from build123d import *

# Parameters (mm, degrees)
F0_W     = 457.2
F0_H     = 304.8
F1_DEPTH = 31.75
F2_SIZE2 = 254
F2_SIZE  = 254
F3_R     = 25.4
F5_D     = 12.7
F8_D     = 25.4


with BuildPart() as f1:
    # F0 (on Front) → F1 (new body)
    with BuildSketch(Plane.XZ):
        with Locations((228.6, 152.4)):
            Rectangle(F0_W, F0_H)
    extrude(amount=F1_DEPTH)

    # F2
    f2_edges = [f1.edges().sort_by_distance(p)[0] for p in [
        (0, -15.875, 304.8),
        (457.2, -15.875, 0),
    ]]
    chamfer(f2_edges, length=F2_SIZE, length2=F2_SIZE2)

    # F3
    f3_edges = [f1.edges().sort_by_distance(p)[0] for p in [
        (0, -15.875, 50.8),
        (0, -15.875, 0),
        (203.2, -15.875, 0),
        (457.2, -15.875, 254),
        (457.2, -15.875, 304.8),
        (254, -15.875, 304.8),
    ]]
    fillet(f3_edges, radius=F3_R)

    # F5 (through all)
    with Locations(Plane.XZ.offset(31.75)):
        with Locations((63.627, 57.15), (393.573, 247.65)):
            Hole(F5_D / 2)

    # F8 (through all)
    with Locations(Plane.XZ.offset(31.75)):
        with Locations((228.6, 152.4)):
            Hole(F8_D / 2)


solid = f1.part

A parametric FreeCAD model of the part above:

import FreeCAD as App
import Part
import Sketcher
from FreeCAD import Vector
Q = App.Units.Quantity


def edges_at(feature, points):
    """Names of the edges that pass closest to the given points."""
    edges = feature.Shape.Edges
    near = lambda p: min(range(len(edges)), key=lambda i: edges[i].distToShape(Part.Vertex(*p))[0])
    return sorted({f"Edge{near(p) + 1}" for p in points})


def add_polygon(sketch, points):
    """Adds a closed chain of lines whose ends are joined by coincident constraints."""
    first, n = sketch.GeometryCount, len(points)
    for a, b in zip(points, points[1:] + points[:1]):
        sketch.addGeometry(Part.LineSegment(App.Vector(*a, 0), App.Vector(*b, 0)), False)
    for i in range(n):
        sketch.addConstraint(Sketcher.Constraint("Coincident", first + i, 2, first + (i + 1) % n, 1))

doc = App.newDocument("Part")
body = doc.addObject("PartDesign::Body", "Body")

# Sketch on XZ plane
sketch1 = body.newObject("Sketcher::SketchObject", "Sketch")
sketch1.AttachmentSupport = (doc.getObject("XZ_Plane"), [""])
sketch1.MapMode = "FlatFace"
add_polygon(sketch1, [(0, 305), (0, 0), (457, 0), (457, 305)])  # lines 0-3
sketch1.addConstraint([
    Sketcher.Constraint("Vertical", 0),
    Sketcher.Constraint("Horizontal", 1),
    Sketcher.Constraint("Vertical", 2),
    Sketcher.Constraint("Horizontal", 3),
    Sketcher.Constraint("Coincident", 0, 2, -1, 1),
    Sketcher.Constraint("DistanceX", 1, 1, 1, 2, Q("18 in")),
    Sketcher.Constraint("DistanceY", 0, 2, 0, 1, Q("12 in")),
])
pad1 = body.newObject("PartDesign::Pad", "Pad")
pad1.Profile = sketch1
pad1.Length = Q("1.25 in")
doc.recompute()

chamfer = body.newObject("PartDesign::Chamfer", "Chamfer")
chamfer.Base = (pad1, edges_at(pad1, [(0, -15.875, 304.8), (457.2, -15.875, 0)]))
chamfer.ChamferType = "Two distances"
chamfer.Size = Q("10 in")
chamfer.Size2 = Q("10 in")
doc.recompute()

fillet = body.newObject("PartDesign::Fillet", "Fillet")
fillet.Base = (chamfer, edges_at(chamfer, [
    (0, -15.875, 50.8),
    (0, -15.875, 0),
    (203.2, -15.875, 0),
    (457.2, -15.875, 254),
    (457.2, -15.875, 304.8),
    (254, -15.875, 304.8),
]))
fillet.Radius = Q("1 in")

# Sketch on XZ plane
sketch2 = body.newObject("Sketcher::SketchObject", "Sketch001")
sketch2.AttachmentSupport = (doc.getObject("XZ_Plane"), [""])
sketch2.MapMode = "FlatFace"
sketch2.AttachmentOffset = App.Placement(Vector(0, 0, 1.25 * 25.4), App.Rotation())
sketch2.addGeometry([
    Part.Circle(Vector(64, 57, 0), Vector(0, 0, 1), 6),
    Part.Circle(Vector(394, 248, 0), Vector(0, 0, 1), 6),
], False)
sketch2.addConstraint([
    Sketcher.Constraint("Equal", 0, 1),
    Sketcher.Constraint("Diameter", 0, Q("0.5 in")),
    Sketcher.Constraint("DistanceY", 0, 3, 1, 3, Q("7.5 in")),
    Sketcher.Constraint("DistanceY", -1, 1, 0, 3, Q("2.25 in")),
    Sketcher.Constraint("DistanceX", 0, 3, 1, 3, Q("12.99 in")),
    Sketcher.Constraint("DistanceX", -1, 1, 0, 3, Q("2.505 in")),
])
doc.recompute()
hole = body.newObject("PartDesign::Hole", "Hole")
hole.Profile = sketch2
hole.ThreadType = "None"
hole.Diameter = Q("0.5 in")
hole.DepthType = "ThroughAll"

# Sketch on XZ plane
sketch3 = body.newObject("Sketcher::SketchObject", "Sketch002")
sketch3.AttachmentSupport = (doc.getObject("XZ_Plane"), [""])
sketch3.MapMode = "FlatFace"
sketch3.AttachmentOffset = App.Placement(Vector(0, 0, 1.25 * 25.4), App.Rotation())
sketch3.addGeometry(Part.Circle(Vector(229, 152, 0), Vector(0, 0, 1), 13), False)
sketch3.addConstraint([
    Sketcher.Constraint("Diameter", 0, Q("1 in")),
    Sketcher.Constraint("DistanceX", -1, 1, 0, 3, Q("9 in")),
    Sketcher.Constraint("DistanceY", -1, 1, 0, 3, Q("6 in")),
])
doc.recompute()
hole2 = body.newObject("PartDesign::Hole", "Hole001")
hole2.Profile = sketch3
hole2.ThreadType = "None"
hole2.Diameter = Q("1 in")
hole2.DepthType = "ThroughAll"

doc.recompute()
